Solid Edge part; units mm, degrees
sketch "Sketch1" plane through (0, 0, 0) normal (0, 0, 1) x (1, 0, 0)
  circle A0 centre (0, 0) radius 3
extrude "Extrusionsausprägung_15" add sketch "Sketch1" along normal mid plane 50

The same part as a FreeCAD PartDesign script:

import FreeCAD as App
import Part
import Sketcher

V = App.Vector
Q = App.Units.Quantity

doc = App.newDocument("Part")
body = doc.addObject("PartDesign::Body", "Body")

# Sketch on XY plane
sketch1 = doc.addObject("Sketcher::SketchObject", "Sketch")
body.addObject(sketch1)
sketch1.AttachmentSupport = (doc.XY_Plane, [""])
sketch1.MapMode = "FlatFace"
sketch1.addGeometry(Part.Circle(V(0, 0, 0), V(0, 0, 1), 3), False)
sketch1.addConstraint([
    Sketcher.Constraint("Coincident", 0, 3, -1, 1),
    Sketcher.Constraint("Diameter", 0, Q("6 mm")),
])
pad1 = doc.addObject("PartDesign::Pad", "Pad")
body.addObject(pad1)
pad1.Profile = sketch1
pad1.Length = 50
pad1.Midplane = True

doc.recompute()
